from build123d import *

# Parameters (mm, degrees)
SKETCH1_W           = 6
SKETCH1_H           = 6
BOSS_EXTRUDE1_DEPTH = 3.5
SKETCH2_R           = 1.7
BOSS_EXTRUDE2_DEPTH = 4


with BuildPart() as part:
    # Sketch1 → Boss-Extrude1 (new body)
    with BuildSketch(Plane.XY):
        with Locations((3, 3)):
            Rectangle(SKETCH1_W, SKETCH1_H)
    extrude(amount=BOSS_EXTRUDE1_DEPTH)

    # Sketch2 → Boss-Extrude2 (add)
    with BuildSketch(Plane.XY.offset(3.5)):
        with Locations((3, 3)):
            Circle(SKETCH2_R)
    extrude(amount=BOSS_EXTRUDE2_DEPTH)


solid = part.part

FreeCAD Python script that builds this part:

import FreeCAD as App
import Part
import Sketcher

V = App.Vector
Q = App.Units.Quantity


def add_polygon(sketch, points):
    """Adds a closed chain of lines whose ends are joined by coincident constraints."""
    first, n = sketch.GeometryCount, len(points)
    for a, b in zip(points, points[1:] + points[:1]):
        sketch.addGeometry(Part.LineSegment(App.Vector(*a, 0), App.Vector(*b, 0)), False)
    for i in range(n):
        sketch.addConstraint(Sketcher.Constraint("Coincident", first + i, 2, first + (i + 1) % n, 1))

doc = App.newDocument("Part")
body = doc.addObject("PartDesign::Body", "Body")

sketch1 = body.newObject("Sketcher::SketchObject", "Sketch")
sketch1.AttachmentSupport = (doc.getObject("XY_Plane"), [""])
sketch1.MapMode = "FlatFace"
add_polygon(sketch1, [(0, 6), (0, 0), (6, 0), (6, 6)])
sketch1.addConstraint([
    Sketcher.Constraint("Vertical", 0),
    Sketcher.Constraint("Horizontal", 1),
    Sketcher.Constraint("Vertical", 2),
    Sketcher.Constraint("Horizontal", 3),
    Sketcher.Constraint("Coincident", 0, 2, -1, 1),
    Sketcher.Constraint("Equal", 3, 0),
    Sketcher.Constraint("DistanceX", 1, 1, 1, 2, Q("6 mm")),
])
pad1 = body.newObject("PartDesign::Pad", "Pad")
pad1.Profile = sketch1
pad1.Length = 3.5

sketch2 = body.newObject("Sketcher::SketchObject", "Sketch001")
sketch2.AttachmentSupport = (doc.getObject("XY_Plane"), [""])
sketch2.MapMode = "FlatFace"
sketch2.AttachmentOffset = App.Placement(V(0, 0, 3.5), App.Rotation())
sketch2.addGeometry(Part.Circle(V(3, 3, 0), V(0, 0, 1), 1.7), False)
sketch2.addConstraint([
    Sketcher.Constraint("Diameter", 0, Q("3.4 mm")),
    Sketcher.Constraint("DistanceX", -1, 1, 0, 3, Q("3 mm")),
    Sketcher.Constraint("DistanceY", -1, 1, 0, 3, Q("3 mm")),
])
pad2 = body.newObject("PartDesign::Pad", "Pad001")
pad2.Profile = sketch2
pad2.Length = 4

doc.recompute()
